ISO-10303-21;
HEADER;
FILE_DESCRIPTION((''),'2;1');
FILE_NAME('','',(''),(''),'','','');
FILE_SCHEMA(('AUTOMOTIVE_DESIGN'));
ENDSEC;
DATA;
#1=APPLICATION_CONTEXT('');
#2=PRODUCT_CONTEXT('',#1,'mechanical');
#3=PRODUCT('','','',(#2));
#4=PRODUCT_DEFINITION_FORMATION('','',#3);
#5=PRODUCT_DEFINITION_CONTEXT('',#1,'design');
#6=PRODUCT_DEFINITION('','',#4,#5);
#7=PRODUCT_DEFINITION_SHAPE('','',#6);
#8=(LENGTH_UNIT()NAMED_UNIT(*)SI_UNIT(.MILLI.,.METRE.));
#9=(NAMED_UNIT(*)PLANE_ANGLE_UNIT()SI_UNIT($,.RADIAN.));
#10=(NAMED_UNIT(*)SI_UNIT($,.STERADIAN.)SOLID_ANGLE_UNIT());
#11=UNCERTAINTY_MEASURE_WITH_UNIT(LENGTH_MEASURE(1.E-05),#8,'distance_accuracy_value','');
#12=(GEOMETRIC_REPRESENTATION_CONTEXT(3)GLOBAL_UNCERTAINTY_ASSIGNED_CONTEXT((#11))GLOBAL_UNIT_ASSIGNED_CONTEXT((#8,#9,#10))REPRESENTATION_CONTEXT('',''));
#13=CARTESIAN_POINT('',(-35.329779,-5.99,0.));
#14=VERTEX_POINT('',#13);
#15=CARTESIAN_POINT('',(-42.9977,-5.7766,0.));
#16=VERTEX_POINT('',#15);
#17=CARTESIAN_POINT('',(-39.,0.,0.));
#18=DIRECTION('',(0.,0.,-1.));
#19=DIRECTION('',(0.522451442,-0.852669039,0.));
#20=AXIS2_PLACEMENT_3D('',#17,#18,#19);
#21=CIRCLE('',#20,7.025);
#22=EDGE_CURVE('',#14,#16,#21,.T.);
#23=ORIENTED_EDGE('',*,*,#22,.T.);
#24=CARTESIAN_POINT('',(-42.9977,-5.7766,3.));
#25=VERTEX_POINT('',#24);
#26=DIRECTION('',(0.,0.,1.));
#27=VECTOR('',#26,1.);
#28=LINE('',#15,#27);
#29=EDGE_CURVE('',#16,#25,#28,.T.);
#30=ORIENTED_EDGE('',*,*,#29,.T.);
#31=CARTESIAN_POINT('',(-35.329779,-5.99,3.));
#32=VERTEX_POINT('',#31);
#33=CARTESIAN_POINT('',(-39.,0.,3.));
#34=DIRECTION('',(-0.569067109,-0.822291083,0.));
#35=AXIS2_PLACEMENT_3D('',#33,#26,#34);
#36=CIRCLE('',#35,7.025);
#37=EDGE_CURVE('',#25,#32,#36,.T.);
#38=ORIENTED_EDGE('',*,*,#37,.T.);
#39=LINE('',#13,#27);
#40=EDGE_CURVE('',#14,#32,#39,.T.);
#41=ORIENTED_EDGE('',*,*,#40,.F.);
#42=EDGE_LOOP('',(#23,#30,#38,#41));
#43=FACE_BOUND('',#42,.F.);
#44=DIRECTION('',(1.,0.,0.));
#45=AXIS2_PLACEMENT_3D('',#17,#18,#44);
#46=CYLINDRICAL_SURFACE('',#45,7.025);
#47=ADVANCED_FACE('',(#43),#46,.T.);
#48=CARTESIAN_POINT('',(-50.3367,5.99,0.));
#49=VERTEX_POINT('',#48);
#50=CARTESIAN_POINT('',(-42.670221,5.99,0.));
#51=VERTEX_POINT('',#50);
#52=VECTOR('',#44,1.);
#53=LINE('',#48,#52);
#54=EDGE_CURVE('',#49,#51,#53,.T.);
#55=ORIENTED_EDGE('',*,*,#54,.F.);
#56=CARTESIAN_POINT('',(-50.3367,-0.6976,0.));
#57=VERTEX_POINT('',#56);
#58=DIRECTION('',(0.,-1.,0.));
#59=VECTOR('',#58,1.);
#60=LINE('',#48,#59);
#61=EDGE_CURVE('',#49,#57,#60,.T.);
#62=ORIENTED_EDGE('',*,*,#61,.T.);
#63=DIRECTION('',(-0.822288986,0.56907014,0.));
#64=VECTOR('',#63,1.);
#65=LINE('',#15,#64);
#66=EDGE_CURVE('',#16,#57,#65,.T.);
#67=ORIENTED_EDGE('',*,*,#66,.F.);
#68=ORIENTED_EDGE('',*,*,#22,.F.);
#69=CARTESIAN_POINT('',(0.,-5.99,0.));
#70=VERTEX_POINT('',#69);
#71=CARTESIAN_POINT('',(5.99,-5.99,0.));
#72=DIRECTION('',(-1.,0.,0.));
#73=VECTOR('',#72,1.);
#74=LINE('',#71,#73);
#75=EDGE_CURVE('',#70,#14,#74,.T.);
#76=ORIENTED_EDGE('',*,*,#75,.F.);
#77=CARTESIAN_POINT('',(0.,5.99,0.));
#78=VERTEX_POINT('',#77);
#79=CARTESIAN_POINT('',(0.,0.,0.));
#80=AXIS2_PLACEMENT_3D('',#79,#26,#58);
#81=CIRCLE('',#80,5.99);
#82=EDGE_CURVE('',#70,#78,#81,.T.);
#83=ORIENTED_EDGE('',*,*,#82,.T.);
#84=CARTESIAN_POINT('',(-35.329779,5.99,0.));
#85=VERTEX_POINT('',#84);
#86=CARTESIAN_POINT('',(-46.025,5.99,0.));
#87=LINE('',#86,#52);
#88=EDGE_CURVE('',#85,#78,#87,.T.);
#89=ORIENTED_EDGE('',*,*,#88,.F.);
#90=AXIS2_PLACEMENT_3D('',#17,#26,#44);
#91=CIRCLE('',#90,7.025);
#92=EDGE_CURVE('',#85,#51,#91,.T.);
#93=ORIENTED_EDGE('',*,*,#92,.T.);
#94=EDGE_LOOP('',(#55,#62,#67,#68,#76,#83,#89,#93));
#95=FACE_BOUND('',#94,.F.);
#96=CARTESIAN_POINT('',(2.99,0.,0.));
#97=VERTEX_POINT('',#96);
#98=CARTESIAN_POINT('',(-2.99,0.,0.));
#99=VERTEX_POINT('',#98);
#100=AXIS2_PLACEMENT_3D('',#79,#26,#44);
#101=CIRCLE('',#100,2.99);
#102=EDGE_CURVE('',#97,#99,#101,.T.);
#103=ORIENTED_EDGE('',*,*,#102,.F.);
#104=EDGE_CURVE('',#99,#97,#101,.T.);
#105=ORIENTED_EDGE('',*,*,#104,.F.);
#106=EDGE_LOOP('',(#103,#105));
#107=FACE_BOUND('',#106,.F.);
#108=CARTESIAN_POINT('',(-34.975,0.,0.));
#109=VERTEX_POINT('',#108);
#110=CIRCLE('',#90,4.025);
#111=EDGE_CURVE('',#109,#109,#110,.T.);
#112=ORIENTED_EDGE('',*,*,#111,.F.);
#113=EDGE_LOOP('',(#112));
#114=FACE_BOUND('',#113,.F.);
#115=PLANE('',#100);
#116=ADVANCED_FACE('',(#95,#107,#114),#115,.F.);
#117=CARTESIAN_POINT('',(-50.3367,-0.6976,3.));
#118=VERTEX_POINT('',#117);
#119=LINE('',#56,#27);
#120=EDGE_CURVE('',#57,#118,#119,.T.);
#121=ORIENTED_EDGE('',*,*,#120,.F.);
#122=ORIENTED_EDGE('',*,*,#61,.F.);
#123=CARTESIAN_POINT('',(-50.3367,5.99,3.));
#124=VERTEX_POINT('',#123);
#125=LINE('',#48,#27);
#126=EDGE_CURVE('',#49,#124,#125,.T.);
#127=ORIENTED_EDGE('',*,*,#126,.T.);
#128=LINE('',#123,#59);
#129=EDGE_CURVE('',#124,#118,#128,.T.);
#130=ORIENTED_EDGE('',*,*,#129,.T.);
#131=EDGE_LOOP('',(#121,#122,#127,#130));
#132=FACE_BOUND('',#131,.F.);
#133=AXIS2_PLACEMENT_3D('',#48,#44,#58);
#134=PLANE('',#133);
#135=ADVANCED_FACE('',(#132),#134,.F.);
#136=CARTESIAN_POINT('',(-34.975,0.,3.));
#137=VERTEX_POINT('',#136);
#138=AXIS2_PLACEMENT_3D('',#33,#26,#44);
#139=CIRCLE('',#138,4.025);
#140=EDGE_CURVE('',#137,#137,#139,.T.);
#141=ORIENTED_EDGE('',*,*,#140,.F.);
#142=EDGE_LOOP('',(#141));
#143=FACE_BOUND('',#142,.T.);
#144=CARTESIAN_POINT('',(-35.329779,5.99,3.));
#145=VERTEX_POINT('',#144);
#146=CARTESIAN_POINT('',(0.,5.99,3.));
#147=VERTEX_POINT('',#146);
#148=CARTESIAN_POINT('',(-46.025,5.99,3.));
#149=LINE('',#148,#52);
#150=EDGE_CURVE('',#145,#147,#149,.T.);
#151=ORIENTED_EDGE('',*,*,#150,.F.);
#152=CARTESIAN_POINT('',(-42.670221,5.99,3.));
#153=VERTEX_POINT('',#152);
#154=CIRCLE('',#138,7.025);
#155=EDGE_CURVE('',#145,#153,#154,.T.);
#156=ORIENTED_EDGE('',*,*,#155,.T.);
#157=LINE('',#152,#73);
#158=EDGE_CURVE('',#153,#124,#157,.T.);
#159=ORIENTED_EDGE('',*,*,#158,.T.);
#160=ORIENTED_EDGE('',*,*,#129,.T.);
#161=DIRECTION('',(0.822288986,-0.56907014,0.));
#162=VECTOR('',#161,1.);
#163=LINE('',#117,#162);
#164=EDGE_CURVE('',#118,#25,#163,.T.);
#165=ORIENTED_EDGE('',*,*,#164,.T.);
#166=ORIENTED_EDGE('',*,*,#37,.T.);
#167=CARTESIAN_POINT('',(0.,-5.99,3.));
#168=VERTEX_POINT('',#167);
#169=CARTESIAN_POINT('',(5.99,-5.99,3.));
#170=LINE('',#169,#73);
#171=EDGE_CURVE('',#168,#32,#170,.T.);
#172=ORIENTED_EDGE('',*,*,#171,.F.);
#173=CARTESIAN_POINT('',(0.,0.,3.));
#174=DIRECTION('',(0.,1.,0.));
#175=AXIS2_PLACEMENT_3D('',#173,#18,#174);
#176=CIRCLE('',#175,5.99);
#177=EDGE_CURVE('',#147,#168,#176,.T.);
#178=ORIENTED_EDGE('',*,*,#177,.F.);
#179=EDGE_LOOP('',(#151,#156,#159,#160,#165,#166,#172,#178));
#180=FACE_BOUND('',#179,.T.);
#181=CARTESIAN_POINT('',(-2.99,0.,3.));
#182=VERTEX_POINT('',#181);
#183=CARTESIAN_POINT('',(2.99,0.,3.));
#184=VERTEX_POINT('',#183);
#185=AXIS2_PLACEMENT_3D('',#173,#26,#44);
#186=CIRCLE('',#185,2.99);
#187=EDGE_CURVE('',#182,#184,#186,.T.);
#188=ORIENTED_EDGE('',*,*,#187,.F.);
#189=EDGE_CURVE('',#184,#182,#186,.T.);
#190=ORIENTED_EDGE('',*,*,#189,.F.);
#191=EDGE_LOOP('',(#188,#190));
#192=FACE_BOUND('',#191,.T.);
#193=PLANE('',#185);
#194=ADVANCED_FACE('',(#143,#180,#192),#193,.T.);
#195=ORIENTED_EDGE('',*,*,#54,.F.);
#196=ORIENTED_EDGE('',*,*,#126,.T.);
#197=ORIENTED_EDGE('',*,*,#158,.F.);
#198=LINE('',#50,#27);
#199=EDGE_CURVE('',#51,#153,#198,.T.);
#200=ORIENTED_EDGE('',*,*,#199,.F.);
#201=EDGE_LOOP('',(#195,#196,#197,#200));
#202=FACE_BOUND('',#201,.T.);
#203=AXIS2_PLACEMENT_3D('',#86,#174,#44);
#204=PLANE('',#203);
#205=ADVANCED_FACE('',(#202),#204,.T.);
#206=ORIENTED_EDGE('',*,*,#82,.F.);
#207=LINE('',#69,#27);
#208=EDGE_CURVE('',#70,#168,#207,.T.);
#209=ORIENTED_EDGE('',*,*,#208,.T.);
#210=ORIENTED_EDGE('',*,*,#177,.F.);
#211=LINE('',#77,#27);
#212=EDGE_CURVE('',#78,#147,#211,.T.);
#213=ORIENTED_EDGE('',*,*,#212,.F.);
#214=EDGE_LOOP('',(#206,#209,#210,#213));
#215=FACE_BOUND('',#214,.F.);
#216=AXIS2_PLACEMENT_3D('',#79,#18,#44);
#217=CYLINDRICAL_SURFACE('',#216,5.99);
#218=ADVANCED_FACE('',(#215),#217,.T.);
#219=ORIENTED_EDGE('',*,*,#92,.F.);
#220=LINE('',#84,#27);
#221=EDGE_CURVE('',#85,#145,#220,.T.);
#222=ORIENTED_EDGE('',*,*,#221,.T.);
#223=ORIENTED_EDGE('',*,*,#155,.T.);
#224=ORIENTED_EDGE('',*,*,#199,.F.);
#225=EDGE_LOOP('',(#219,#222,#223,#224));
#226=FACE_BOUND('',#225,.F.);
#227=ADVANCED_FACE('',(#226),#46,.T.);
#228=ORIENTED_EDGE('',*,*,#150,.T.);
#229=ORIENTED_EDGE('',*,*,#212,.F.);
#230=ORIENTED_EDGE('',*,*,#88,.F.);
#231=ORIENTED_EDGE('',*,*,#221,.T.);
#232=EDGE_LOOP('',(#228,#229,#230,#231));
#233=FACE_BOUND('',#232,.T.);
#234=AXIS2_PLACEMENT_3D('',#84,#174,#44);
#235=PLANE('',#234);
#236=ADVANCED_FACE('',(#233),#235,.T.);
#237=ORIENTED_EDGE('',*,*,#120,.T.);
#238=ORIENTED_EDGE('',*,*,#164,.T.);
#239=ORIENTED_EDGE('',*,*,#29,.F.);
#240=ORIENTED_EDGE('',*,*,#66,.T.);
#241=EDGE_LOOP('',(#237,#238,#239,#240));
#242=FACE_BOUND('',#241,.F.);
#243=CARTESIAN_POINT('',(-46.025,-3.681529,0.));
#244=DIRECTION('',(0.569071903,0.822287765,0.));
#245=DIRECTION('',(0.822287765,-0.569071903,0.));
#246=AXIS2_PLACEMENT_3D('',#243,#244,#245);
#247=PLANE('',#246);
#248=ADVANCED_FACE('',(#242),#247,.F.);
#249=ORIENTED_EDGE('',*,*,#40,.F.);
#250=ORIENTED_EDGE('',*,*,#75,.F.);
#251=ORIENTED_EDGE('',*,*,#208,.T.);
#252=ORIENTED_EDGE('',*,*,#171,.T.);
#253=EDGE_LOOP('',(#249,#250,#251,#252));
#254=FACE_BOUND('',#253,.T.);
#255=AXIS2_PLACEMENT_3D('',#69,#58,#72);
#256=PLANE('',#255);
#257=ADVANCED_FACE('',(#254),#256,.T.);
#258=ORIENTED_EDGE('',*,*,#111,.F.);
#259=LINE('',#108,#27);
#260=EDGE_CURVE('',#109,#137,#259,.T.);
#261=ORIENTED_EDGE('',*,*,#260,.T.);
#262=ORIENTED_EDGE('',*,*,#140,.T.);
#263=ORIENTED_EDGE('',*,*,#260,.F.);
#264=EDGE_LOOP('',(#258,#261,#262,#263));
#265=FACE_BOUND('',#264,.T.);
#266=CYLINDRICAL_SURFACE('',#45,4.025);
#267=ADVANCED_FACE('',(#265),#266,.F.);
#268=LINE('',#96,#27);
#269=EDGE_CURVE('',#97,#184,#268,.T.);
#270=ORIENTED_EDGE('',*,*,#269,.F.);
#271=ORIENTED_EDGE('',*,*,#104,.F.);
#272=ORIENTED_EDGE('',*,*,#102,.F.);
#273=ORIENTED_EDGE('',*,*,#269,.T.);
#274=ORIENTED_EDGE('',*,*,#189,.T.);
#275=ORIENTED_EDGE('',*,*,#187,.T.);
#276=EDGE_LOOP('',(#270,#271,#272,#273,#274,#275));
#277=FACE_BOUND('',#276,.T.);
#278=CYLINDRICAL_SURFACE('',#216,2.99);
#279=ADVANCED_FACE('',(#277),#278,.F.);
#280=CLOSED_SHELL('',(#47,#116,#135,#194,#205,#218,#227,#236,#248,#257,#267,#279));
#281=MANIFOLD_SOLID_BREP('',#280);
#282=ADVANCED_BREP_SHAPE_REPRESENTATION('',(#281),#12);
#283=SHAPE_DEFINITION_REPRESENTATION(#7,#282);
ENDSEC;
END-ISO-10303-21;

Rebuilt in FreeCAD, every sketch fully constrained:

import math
import FreeCAD as App
import Part
import Sketcher
from FreeCAD import Vector
Q = App.Units.Quantity

doc = App.newDocument("Part")
body = doc.addObject("PartDesign::Body", "Body")

# Sketch on XY plane
sketch1 = body.newObject("Sketcher::SketchObject", "Sketch")
sketch1.AttachmentSupport = (doc.getObject("XY_Plane"), [""])
sketch1.MapMode = "FlatFace"
sketch1.addGeometry(Part.LineSegment(Vector(0, 5.99, 0), Vector(-35.329779, 5.99, 0)), False)
sketch1.addGeometry(Part.ArcOfCircle(Part.Circle(Vector(-39, 0, 0), Vector(0, 0, 1), 7.025), math.radians(58.503166), math.radians(121.496834)), False)
sketch1.addGeometry(Part.LineSegment(Vector(-42.670221, 5.99, 0), Vector(-50.3367, 5.99, 0)), False)
sketch1.addGeometry(Part.LineSegment(Vector(-50.3367, 5.99, 0), Vector(-50.3367, -0.6976, 0)), False)
sketch1.addGeometry(Part.LineSegment(Vector(-50.3367, -0.6976, 0), Vector(-42.9977, -5.7766, 0)), False)
sketch1.addGeometry(Part.ArcOfCircle(Part.Circle(Vector(-39, 0, 0), Vector(0, 0, 1), 7.025), math.radians(-124.685198), math.radians(-58.503166)), False)
sketch1.addGeometry(Part.LineSegment(Vector(-35.329779, -5.99, 0), Vector(0, -5.99, 0)), False)
sketch1.addGeometry(Part.ArcOfCircle(Part.Circle(Vector(0, 0, 0), Vector(0, 0, 1), 5.99), math.radians(-90), math.radians(90)), False)
sketch1.addGeometry(Part.Circle(Vector(-39, 0, 0), Vector(0, 0, 1), 4.025), False)
sketch1.addGeometry(Part.Circle(Vector(0, 0, 0), Vector(0, 0, 1), 2.99), False)
sketch1.addConstraint(Sketcher.Constraint("Coincident", 0, 2, 1, 1))
sketch1.addConstraint(Sketcher.Constraint("Coincident", 1, 2, 2, 1))
sketch1.addConstraint(Sketcher.Constraint("Coincident", 2, 2, 3, 1))
sketch1.addConstraint(Sketcher.Constraint("Coincident", 3, 2, 4, 1))
sketch1.addConstraint(Sketcher.Constraint("Tangent", 4, 2, 5, 1))
sketch1.addConstraint(Sketcher.Constraint("Coincident", 5, 2, 6, 1))
sketch1.addConstraint(Sketcher.Constraint("Tangent", 6, 2, 7, 1))
sketch1.addConstraint(Sketcher.Constraint("Tangent", 7, 2, 0, 1))
sketch1.addConstraint(Sketcher.Constraint("Horizontal", 0))
sketch1.addConstraint(Sketcher.Constraint("Horizontal", 2))
sketch1.addConstraint(Sketcher.Constraint("Vertical", 3))
sketch1.addConstraint(Sketcher.Constraint("Horizontal", 6))
sketch1.addConstraint(Sketcher.Constraint("Coincident", 7, 3, -1, 1))
sketch1.addConstraint(Sketcher.Constraint("Coincident", 9, 3, -1, 1))
sketch1.addConstraint(Sketcher.Constraint("Coincident", 5, 3, 1, 3))
sketch1.addConstraint(Sketcher.Constraint("Coincident", 8, 3, 1, 3))
sketch1.addConstraint(Sketcher.Constraint("Equal", 1, 5))
sketch1.addConstraint(Sketcher.Constraint("PointOnObject", 1, 3, -1))
sketch1.addConstraint(Sketcher.Constraint("Horizontal", 0, 2, 1, 2))
sketch1.addConstraint(Sketcher.Constraint("Diameter", 8, Q("8.05 mm")))
sketch1.addConstraint(Sketcher.Constraint("Diameter", 9, Q("5.98 mm")))
sketch1.addConstraint(Sketcher.Constraint("DistanceX", 1, 3, -1, 1, Q("39 mm")))
sketch1.addConstraint(Sketcher.Constraint("Radius", 7, Q("5.99 mm")))
sketch1.addConstraint(Sketcher.Constraint("Radius", 1, Q("7.025 mm")))
sketch1.addConstraint(Sketcher.Constraint("Distance", 4, Q("8.925 mm")))
sketch1.addConstraint(Sketcher.Constraint("DistanceX", 2, 2, 2, 1, Q("7.6665 mm")))
pad1 = body.newObject("PartDesign::Pad", "Pad")
pad1.Profile = sketch1
pad1.Length = 3

doc.recompute()
